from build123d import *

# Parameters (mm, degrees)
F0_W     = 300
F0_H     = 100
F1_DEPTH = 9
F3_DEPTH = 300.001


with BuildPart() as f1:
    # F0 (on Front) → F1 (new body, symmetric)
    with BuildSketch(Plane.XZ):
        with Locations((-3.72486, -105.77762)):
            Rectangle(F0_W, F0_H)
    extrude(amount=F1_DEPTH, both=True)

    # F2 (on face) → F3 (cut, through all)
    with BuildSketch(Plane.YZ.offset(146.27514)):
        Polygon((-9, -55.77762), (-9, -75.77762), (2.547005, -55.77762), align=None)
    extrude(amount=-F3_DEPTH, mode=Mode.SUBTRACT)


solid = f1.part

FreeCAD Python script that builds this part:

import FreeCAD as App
import Part
import Sketcher

V = App.Vector
Q = App.Units.Quantity


def add_polygon(sketch, points):
    """Adds a closed chain of lines whose ends are joined by coincident constraints."""
    first, n = sketch.GeometryCount, len(points)
    for a, b in zip(points, points[1:] + points[:1]):
        sketch.addGeometry(Part.LineSegment(App.Vector(*a, 0), App.Vector(*b, 0)), False)
    for i in range(n):
        sketch.addConstraint(Sketcher.Constraint("Coincident", first + i, 2, first + (i + 1) % n, 1))

doc = App.newDocument("Part")
body = doc.addObject("PartDesign::Body", "Body")

# Sketch on XZ plane
sketch1 = body.newObject("Sketcher::SketchObject", "Sketch")
sketch1.AttachmentSupport = (doc.getObject("XZ_Plane"), [""])
sketch1.MapMode = "FlatFace"
add_polygon(sketch1, [(-154, -56), (-154, -156), (146, -156), (146, -56)])  # lines 0-3
sketch1.addConstraint([
    Sketcher.Constraint("Vertical", 0),
    Sketcher.Constraint("Horizontal", 1),
    Sketcher.Constraint("Vertical", 2),
    Sketcher.Constraint("Horizontal", 3),
    Sketcher.Constraint("DistanceX", 1, 1, 1, 2, 300.0),
    Sketcher.Constraint("DistanceY", 0, 2, 0, 1, 100.0),
    Sketcher.Constraint("DistanceX", 0, 2, -1, 1, 153.72486),
    Sketcher.Constraint("DistanceY", 0, 2, -1, 1, 155.77762),
])
pad1 = body.newObject("PartDesign::Pad", "Pad")
pad1.Profile = sketch1
pad1.Length = 18
pad1.Midplane = True

# Sketch on YZ plane
sketch2 = body.newObject("Sketcher::SketchObject", "Sketch001")
sketch2.AttachmentSupport = (doc.getObject("YZ_Plane"), [""])
sketch2.MapMode = "FlatFace"
sketch2.AttachmentOffset = App.Placement(V(0, 0, 146.27514), App.Rotation())
add_polygon(sketch2, [(-9, -56), (-9, -76), (3, -56)])  # lines 0-2
sketch2.addConstraint([
    Sketcher.Constraint("Vertical", 0),
    Sketcher.Constraint("Horizontal", 2),
    Sketcher.Constraint("DistanceY", 0, 2, 0, 1, 20.0),
    Sketcher.Constraint("Angle", 1, Q("60.000001 deg")),
    Sketcher.Constraint("DistanceX", 0, 2, -1, 1, 9.0),
    Sketcher.Constraint("DistanceY", 0, 2, -1, 1, 75.77762),
])
pocket1 = body.newObject("PartDesign::Pocket", "Pocket")
pocket1.Profile = sketch2
pocket1.Type = "ThroughAll"

doc.recompute()
